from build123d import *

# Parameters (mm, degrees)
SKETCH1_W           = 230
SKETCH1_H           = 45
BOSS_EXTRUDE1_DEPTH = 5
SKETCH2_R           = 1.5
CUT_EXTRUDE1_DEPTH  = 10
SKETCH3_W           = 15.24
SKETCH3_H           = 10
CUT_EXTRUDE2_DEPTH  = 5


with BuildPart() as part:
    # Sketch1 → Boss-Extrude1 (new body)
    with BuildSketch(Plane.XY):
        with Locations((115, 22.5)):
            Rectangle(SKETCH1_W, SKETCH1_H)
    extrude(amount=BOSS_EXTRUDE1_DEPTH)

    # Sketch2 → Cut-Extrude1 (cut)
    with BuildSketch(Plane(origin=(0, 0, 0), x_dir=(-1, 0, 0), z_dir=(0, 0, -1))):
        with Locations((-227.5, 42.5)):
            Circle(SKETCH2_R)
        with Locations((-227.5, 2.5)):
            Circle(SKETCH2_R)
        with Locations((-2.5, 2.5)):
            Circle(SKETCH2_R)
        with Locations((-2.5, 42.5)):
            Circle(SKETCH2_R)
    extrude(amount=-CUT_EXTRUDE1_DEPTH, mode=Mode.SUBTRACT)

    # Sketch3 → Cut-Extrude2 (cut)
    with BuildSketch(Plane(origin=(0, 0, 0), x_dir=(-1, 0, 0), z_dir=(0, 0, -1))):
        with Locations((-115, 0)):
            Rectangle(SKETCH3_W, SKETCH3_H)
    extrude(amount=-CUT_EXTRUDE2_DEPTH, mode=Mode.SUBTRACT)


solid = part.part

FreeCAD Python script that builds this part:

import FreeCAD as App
import Part
import Sketcher
Q = App.Units.Quantity

doc = App.newDocument("Part")
body = doc.addObject("PartDesign::Body", "Body")

sketch1 = body.newObject("Sketcher::SketchObject", "Sketch")
sketch1.AttachmentSupport = (doc.getObject("XY_Plane"), [""])
sketch1.MapMode = "FlatFace"
sketch1.addGeometry([
    Part.LineSegment(App.Vector(0, 45, 0), App.Vector(0, 0, 0)),
    Part.LineSegment(App.Vector(0, 0, 0), App.Vector(230, 0, 0)),
    Part.LineSegment(App.Vector(230, 0, 0), App.Vector(230, 45, 0)),
    Part.LineSegment(App.Vector(230, 45, 0), App.Vector(0, 45, 0)),
], False)
sketch1.addConstraint([
    Sketcher.Constraint("Coincident", 0, 2, 1, 1),
    Sketcher.Constraint("Coincident", 1, 2, 2, 1),
    Sketcher.Constraint("Coincident", 2, 2, 3, 1),
    Sketcher.Constraint("Coincident", 3, 2, 0, 1),
    Sketcher.Constraint("Vertical", 0),
    Sketcher.Constraint("Horizontal", 1),
    Sketcher.Constraint("Vertical", 2),
    Sketcher.Constraint("Horizontal", 3),
    Sketcher.Constraint("Coincident", 0, 2, -1, 1),
    Sketcher.Constraint("DistanceX", 1, 1, 1, 2, Q("230 mm")),
    Sketcher.Constraint("DistanceY", 0, 2, 0, 1, Q("45 mm")),
])
pad1 = body.newObject("PartDesign::Pad", "Pad")
pad1.Profile = sketch1
pad1.Length = 5

sketch2 = body.newObject("Sketcher::SketchObject", "Sketch001")
sketch2.AttachmentSupport = (doc.getObject("XY_Plane"), [""])
sketch2.MapMode = "FlatFace"
sketch2.addGeometry([
    Part.Circle(App.Vector(227.5, 42.5, 0), App.Vector(0, 0, 1), 1.5),
    Part.Circle(App.Vector(227.5, 2.5, 0), App.Vector(0, 0, 1), 1.5),
    Part.Circle(App.Vector(2.5, 2.5, 0), App.Vector(0, 0, 1), 1.5),
    Part.Circle(App.Vector(2.5, 42.5, 0), App.Vector(0, 0, 1), 1.5),
], False)
sketch2.addConstraint([
    Sketcher.Constraint("Equal", 0, 1),
    Sketcher.Constraint("Equal", 1, 2),
    Sketcher.Constraint("Equal", 2, 3),
    Sketcher.Constraint("Horizontal", 1, 3, 2, 3),
    Sketcher.Constraint("Horizontal", 0, 3, 3, 3),
    Sketcher.Constraint("Vertical", 0, 3, 1, 3),
    Sketcher.Constraint("Vertical", 2, 3, 3, 3),
    Sketcher.Constraint("Diameter", 0, Q("3 mm")),
    Sketcher.Constraint("DistanceY", 1, 3, 0, 3, Q("40 mm")),
    Sketcher.Constraint("DistanceX", 2, 3, 1, 3, Q("225 mm")),
    Sketcher.Constraint("DistanceX", -1, 1, 0, 3, Q("227.5 mm")),
    Sketcher.Constraint("DistanceY", -1, 1, 0, 3, Q("42.5 mm")),
])
pocket1 = body.newObject("PartDesign::Pocket", "Pocket")
pocket1.Profile = sketch2
pocket1.Length = 10
pocket1.Reversed = True

sketch3 = body.newObject("Sketcher::SketchObject", "Sketch002")
sketch3.AttachmentSupport = (doc.getObject("XY_Plane"), [""])
sketch3.MapMode = "FlatFace"
sketch3.addGeometry([
    Part.LineSegment(App.Vector(123, 5, 0), App.Vector(123, -5, 0)),
    Part.LineSegment(App.Vector(123, -5, 0), App.Vector(107, -5, 0)),
    Part.LineSegment(App.Vector(107, -5, 0), App.Vector(107, 5, 0)),
    Part.LineSegment(App.Vector(107, 5, 0), App.Vector(123, 5, 0)),
], False)
sketch3.addConstraint([
    Sketcher.Constraint("Coincident", 0, 2, 1, 1),
    Sketcher.Constraint("Coincident", 1, 2, 2, 1),
    Sketcher.Constraint("Coincident", 2, 2, 3, 1),
    Sketcher.Constraint("Coincident", 3, 2, 0, 1),
    Sketcher.Constraint("Vertical", 0),
    Sketcher.Constraint("Horizontal", 1),
    Sketcher.Constraint("Vertical", 2),
    Sketcher.Constraint("Horizontal", 3),
    Sketcher.Constraint("DistanceY", 0, 2, 0, 1, Q("10 mm")),
    Sketcher.Constraint("DistanceY", 0, 2, -1, 1, Q("5 mm")),
    Sketcher.Constraint("DistanceX", 1, 2, 1, 1, Q("15.24 mm")),
    Sketcher.Constraint("DistanceX", -1, 1, 0, 2, Q("122.62 mm")),
])
pocket2 = body.newObject("PartDesign::Pocket", "Pocket001")
pocket2.Profile = sketch3
pocket2.Length = 5
pocket2.Reversed = True

doc.recompute()
